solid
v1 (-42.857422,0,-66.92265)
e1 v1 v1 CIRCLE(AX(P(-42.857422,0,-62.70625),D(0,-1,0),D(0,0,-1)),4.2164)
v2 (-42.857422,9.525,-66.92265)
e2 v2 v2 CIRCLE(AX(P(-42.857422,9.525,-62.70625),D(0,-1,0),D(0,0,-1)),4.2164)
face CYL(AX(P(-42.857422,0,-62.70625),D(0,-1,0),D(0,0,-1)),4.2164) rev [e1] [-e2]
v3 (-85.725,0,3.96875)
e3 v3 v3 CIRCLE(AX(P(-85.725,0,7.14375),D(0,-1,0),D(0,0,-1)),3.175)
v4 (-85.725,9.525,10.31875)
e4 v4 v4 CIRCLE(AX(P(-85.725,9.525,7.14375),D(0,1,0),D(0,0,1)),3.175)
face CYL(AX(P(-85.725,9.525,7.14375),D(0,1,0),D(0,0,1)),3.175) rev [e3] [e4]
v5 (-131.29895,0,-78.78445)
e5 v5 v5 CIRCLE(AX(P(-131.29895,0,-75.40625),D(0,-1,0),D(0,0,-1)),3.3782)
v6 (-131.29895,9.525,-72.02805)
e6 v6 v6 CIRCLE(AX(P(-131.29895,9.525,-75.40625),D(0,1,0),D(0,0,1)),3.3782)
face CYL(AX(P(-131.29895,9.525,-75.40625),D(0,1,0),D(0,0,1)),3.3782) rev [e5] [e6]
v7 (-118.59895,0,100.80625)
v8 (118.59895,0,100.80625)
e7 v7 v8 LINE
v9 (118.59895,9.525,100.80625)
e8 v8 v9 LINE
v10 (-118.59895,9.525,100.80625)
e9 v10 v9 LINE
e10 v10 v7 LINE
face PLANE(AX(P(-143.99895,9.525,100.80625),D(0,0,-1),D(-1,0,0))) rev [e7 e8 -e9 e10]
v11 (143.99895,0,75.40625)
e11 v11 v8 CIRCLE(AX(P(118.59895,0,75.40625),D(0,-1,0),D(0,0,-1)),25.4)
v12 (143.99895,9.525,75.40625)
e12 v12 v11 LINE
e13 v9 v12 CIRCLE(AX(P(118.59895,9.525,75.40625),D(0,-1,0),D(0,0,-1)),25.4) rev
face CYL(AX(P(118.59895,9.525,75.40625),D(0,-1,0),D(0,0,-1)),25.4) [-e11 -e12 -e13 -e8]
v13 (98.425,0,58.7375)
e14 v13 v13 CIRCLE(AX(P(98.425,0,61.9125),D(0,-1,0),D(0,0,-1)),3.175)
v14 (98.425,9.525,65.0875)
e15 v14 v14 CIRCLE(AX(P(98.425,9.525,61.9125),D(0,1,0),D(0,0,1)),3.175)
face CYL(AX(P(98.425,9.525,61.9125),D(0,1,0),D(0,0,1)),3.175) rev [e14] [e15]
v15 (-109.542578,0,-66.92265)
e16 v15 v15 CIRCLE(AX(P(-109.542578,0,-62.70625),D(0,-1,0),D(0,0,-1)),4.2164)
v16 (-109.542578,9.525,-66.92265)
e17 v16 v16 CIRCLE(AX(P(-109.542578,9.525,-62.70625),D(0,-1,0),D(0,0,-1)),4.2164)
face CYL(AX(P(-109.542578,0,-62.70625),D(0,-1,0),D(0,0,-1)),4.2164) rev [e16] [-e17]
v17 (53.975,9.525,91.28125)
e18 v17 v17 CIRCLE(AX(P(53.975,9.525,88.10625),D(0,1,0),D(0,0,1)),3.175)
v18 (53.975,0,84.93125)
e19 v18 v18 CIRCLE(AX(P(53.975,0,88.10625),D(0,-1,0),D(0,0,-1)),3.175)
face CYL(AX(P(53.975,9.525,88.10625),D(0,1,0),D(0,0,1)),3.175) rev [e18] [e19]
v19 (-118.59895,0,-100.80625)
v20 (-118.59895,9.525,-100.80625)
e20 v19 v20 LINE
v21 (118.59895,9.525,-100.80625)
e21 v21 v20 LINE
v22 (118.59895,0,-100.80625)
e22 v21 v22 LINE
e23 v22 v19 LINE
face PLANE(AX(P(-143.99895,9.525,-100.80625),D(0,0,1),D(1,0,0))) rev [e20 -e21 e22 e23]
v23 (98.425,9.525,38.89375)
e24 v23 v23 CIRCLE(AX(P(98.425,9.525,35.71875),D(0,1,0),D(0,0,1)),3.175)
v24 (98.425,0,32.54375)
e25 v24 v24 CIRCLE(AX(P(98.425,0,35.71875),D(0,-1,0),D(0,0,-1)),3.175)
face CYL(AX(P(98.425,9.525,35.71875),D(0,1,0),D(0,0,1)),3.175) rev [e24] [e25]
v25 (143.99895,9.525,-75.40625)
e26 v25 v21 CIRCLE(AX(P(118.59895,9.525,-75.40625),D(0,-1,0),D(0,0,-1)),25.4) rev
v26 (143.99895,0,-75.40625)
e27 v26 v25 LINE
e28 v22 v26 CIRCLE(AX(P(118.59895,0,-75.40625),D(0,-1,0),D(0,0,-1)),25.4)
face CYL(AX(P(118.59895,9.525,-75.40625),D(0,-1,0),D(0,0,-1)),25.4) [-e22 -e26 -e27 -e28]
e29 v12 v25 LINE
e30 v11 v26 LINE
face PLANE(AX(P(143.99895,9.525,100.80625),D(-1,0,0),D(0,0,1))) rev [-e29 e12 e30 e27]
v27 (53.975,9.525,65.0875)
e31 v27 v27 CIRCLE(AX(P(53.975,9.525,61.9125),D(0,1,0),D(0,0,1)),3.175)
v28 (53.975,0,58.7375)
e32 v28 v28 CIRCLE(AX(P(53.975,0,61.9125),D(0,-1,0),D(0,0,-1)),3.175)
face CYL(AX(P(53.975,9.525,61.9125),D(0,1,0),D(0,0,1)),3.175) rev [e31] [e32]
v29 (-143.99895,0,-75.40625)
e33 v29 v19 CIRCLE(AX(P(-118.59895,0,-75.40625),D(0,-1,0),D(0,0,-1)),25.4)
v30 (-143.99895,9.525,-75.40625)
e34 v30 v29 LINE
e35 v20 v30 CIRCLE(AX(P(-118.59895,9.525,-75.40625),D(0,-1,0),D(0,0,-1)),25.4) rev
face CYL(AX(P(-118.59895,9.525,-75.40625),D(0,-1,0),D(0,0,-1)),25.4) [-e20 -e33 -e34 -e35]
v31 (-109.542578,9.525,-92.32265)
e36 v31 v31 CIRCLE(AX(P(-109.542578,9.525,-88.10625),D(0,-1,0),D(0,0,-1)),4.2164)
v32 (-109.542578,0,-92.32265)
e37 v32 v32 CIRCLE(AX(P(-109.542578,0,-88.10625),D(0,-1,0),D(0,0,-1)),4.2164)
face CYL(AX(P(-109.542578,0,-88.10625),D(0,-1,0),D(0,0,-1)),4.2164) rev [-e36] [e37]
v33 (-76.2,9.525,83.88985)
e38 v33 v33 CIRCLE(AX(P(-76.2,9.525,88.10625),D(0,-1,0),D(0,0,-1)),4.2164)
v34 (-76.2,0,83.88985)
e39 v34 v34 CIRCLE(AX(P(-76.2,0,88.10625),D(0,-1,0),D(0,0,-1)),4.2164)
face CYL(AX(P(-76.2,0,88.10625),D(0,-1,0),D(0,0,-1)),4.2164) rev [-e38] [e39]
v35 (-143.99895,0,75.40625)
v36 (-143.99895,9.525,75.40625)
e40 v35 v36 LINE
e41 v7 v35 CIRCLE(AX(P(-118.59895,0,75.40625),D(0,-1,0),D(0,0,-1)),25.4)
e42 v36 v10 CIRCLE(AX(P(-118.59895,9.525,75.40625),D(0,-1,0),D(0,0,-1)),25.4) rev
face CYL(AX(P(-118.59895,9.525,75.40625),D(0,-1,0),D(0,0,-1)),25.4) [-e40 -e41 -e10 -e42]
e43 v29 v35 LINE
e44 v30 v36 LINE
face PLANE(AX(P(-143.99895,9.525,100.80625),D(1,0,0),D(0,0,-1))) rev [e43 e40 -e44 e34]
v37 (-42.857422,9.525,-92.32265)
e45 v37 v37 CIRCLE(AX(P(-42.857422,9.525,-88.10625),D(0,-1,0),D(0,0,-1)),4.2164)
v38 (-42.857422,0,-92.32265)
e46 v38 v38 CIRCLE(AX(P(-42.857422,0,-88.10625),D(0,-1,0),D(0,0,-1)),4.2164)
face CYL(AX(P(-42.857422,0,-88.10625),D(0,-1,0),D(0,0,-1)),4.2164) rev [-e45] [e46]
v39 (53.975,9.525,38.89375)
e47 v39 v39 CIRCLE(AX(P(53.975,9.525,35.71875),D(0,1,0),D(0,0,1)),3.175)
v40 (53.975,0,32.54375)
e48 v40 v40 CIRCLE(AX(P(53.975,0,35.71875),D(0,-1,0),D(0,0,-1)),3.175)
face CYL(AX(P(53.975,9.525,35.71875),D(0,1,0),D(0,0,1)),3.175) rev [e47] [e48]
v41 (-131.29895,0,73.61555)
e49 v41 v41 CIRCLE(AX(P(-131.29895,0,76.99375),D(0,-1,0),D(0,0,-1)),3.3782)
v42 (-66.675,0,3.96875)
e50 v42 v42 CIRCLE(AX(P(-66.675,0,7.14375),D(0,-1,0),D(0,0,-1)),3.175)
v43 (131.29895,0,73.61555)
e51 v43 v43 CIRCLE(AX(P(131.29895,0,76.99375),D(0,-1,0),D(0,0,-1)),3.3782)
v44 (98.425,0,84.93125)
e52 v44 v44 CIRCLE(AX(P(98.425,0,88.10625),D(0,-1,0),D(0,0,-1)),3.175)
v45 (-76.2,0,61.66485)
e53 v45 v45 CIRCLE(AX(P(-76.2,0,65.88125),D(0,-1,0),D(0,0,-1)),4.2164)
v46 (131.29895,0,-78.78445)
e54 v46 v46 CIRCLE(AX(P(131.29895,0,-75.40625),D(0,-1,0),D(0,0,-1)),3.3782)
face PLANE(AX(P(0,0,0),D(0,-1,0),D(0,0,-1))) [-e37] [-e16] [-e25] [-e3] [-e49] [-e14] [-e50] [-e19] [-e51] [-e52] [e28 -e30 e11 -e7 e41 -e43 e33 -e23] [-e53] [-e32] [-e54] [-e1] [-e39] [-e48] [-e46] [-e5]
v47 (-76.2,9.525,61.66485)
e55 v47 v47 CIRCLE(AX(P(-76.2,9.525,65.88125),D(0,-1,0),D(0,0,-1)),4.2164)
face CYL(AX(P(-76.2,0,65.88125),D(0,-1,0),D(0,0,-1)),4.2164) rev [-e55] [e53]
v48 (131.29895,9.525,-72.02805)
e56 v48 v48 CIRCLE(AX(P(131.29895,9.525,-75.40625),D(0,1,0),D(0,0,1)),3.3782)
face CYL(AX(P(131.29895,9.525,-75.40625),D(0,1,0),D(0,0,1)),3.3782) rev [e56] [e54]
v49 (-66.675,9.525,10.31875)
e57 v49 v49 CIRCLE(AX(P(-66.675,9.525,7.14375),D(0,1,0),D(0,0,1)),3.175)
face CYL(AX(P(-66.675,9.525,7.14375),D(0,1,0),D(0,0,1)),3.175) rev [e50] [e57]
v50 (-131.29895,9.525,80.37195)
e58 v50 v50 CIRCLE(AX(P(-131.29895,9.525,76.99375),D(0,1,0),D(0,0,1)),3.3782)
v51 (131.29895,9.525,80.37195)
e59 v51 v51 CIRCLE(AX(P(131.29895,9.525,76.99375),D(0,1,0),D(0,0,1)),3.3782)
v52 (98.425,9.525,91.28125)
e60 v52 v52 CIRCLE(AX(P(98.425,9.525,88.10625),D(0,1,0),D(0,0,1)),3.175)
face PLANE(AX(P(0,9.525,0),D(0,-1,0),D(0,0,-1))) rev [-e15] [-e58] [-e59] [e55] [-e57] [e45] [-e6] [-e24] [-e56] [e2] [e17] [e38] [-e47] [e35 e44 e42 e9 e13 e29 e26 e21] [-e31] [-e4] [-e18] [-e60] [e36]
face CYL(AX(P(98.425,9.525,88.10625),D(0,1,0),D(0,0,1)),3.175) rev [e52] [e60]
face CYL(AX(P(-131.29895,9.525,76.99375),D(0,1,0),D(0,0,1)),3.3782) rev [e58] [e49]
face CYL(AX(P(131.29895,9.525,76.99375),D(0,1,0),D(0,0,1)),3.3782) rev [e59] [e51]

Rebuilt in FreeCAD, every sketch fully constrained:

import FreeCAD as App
import Part
import Sketcher
Q = App.Units.Quantity


def edges_at(feature, points):
    """Names of the edges that pass closest to the given points."""
    edges = feature.Shape.Edges
    near = lambda p: min(range(len(edges)), key=lambda i: edges[i].distToShape(Part.Vertex(*p))[0])
    return sorted({f"Edge{near(p) + 1}" for p in points})


def add_polygon(sketch, points):
    """Adds a closed chain of lines whose ends are joined by coincident constraints."""
    first, n = sketch.GeometryCount, len(points)
    for a, b in zip(points, points[1:] + points[:1]):
        sketch.addGeometry(Part.LineSegment(App.Vector(*a, 0), App.Vector(*b, 0)), False)
    for i in range(n):
        sketch.addConstraint(Sketcher.Constraint("Coincident", first + i, 2, first + (i + 1) % n, 1))

doc = App.newDocument("Part")
body = doc.addObject("PartDesign::Body", "Body")

# Sketch on XZ plane
sketch1 = body.newObject("Sketcher::SketchObject", "Sketch")
sketch1.AttachmentSupport = (doc.getObject("XZ_Plane"), [""])
sketch1.MapMode = "FlatFace"
add_polygon(sketch1, [(-144, -101), (-144, 101), (144, 101), (144, -101)])  # lines 0-3
sketch1.addConstraint([
    Sketcher.Constraint("Vertical", 0),
    Sketcher.Constraint("Horizontal", 1),
    Sketcher.Constraint("Vertical", 2),
    Sketcher.Constraint("Horizontal", 3),
    Sketcher.Constraint("Symmetric", 0, 2, 2, 2, -1, 1),
    Sketcher.Constraint("DistanceY", 0, 1, 0, 2, Q("7.9375 in")),
    Sketcher.Constraint("DistanceX", 1, 1, 1, 2, Q("11.3385 in")),
])
pad1 = body.newObject("PartDesign::Pad", "Pad")
pad1.Profile = sketch1
pad1.Length = Q("0.375 in")
pad1.Reversed = True
doc.recompute()

fillet = body.newObject("PartDesign::Fillet", "Fillet")
fillet.Base = (pad1, edges_at(pad1, [
    (143.999, 4.763, 100.806),
    (-143.999, 4.763, 100.806),
    (-143.999, 4.763, -100.806),
    (143.999, 4.763, -100.806),
]))
fillet.Radius = Q("1 in")

# Sketch on XZ plane
sketch2 = body.newObject("Sketcher::SketchObject", "Sketch001")
sketch2.AttachmentSupport = (doc.getObject("XZ_Plane"), [""])
sketch2.MapMode = "FlatFace"
sketch2.AttachmentOffset = App.Placement(App.Vector(0, 0, -0.375 * 25.4), App.Rotation())
sketch2.addGeometry([
    Part.Circle(App.Vector(-131.3, -75.4, 0), App.Vector(0, 0, 1), 3.4),
    Part.Circle(App.Vector(131.3, -75.4, 0), App.Vector(0, 0, 1), 3.4),
    Part.Circle(App.Vector(131.3, 77, 0), App.Vector(0, 0, 1), 3.4),
    Part.Circle(App.Vector(-131.3, 77, 0), App.Vector(0, 0, 1), 3.4),
], False)
sketch2.addConstraint([
    Sketcher.Constraint("Equal", 0, 1),
    Sketcher.Constraint("Equal", 1, 2),
    Sketcher.Constraint("Equal", 2, 3),
    Sketcher.Constraint("Symmetric", 0, 3, 1, 3, -2),
    Sketcher.Constraint("Symmetric", 2, 3, 3, 3, -2),
    Sketcher.Constraint("Vertical", 1, 3, 2, 3),
    Sketcher.Constraint("Diameter", 0, Q("0.266 in")),
    Sketcher.Constraint("DistanceY", 1, 3, 2, 3, Q("6 in")),
    Sketcher.Constraint("DistanceY", 0, 3, -1, 1, Q("2.96875 in")),
    Sketcher.Constraint("DistanceX", 0, 3, 1, 3, Q("10.3385 in")),
])
doc.recompute()
hole = body.newObject("PartDesign::Hole", "Hole")
hole.Profile = sketch2
hole.ThreadType = "None"
hole.Diameter = Q("0.266 in")
hole.DepthType = "Dimension"
hole.Depth = Q("0.85 in")
hole.DrillPoint = "Angled"
hole.DrillPointAngle = 118
hole.Reversed = True

# Sketch on XZ plane
sketch3 = body.newObject("Sketcher::SketchObject", "Sketch002")
sketch3.AttachmentSupport = (doc.getObject("XZ_Plane"), [""])
sketch3.MapMode = "FlatFace"
sketch3.addGeometry([
    Part.Circle(App.Vector(-76.2, 88.1, 0), App.Vector(0, 0, 1), 4.2),  # 0
    Part.Circle(App.Vector(-76.2, 65.9, 0), App.Vector(0, 0, 1), 4.2),  # 1
    Part.Circle(App.Vector(-42.9, -88.1, 0), App.Vector(0, 0, 1), 4.2),  # 2
    Part.Circle(App.Vector(-109.5, -62.7, 0), App.Vector(0, 0, 1), 4.2),  # 3
    Part.Circle(App.Vector(-42.9, -62.7, 0), App.Vector(0, 0, 1), 4.2),  # 4
    Part.Circle(App.Vector(-109.5, -88.1, 0), App.Vector(0, 0, 1), 4.2),  # 5
], False)
sketch3.addConstraint([
    Sketcher.Constraint("Equal", 0, 1),
    Sketcher.Constraint("Equal", 1, 2),
    Sketcher.Constraint("Equal", 2, 3),
    Sketcher.Constraint("Equal", 3, 4),
    Sketcher.Constraint("Equal", 4, 5),
    Sketcher.Constraint("Horizontal", 3, 3, 4, 3),
    Sketcher.Constraint("Horizontal", 2, 3, 5, 3),
    Sketcher.Constraint("Vertical", 0, 3, 1, 3),
    Sketcher.Constraint("Vertical", 2, 3, 4, 3),
    Sketcher.Constraint("Vertical", 3, 3, 5, 3),
    Sketcher.Constraint("Diameter", 0, Q("0.332 in")),
    Sketcher.Constraint("DistanceX", 0, 3, -1, 1, Q("3 in")),
    Sketcher.Constraint("DistanceY", 2, 3, 3, 3, Q("1 in")),
    Sketcher.Constraint("DistanceY", -1, 1, 0, 3, Q("3.46875 in")),
    Sketcher.Constraint("DistanceY", -1, 1, 1, 3, Q("2.59375 in")),
    Sketcher.Constraint("DistanceY", 2, 3, -1, 1, Q("3.46875 in")),
    Sketcher.Constraint("DistanceX", 2, 3, -1, 1, Q("1.6873001 in")),
    Sketcher.Constraint("DistanceX", 3, 3, -1, 1, Q("4.3126999 in")),
])
doc.recompute()
hole2 = body.newObject("PartDesign::Hole", "Hole001")
hole2.Profile = sketch3
hole2.ThreadType = "None"
hole2.Diameter = Q("0.332 in")
hole2.DepthType = "ThroughAll"

# Sketch on XZ plane
sketch4 = body.newObject("Sketcher::SketchObject", "Sketch003")
sketch4.AttachmentSupport = (doc.getObject("XZ_Plane"), [""])
sketch4.MapMode = "FlatFace"
sketch4.AttachmentOffset = App.Placement(App.Vector(0, 0, -0.375 * 25.4), App.Rotation())
sketch4.addGeometry([
    Part.Circle(App.Vector(54, 35.7, 0), App.Vector(0, 0, 1), 3.2),  # 0
    Part.Circle(App.Vector(98.4, 35.7, 0), App.Vector(0, 0, 1), 3.2),  # 1
    Part.Circle(App.Vector(98.4, 61.9, 0), App.Vector(0, 0, 1), 3.2),  # 2
    Part.Circle(App.Vector(98.4, 88.1, 0), App.Vector(0, 0, 1), 3.2),  # 3
    Part.Circle(App.Vector(54, 88.1, 0), App.Vector(0, 0, 1), 3.2),  # 4
    Part.Circle(App.Vector(54, 61.9, 0), App.Vector(0, 0, 1), 3.2),  # 5
    Part.Circle(App.Vector(-66.7, 7.1, 0), App.Vector(0, 0, 1), 3.2),  # 6
    Part.Circle(App.Vector(-85.7, 7.1, 0), App.Vector(0, 0, 1), 3.2),  # 7
], False)
sketch4.addConstraint([
    Sketcher.Constraint("Equal", 0, 1),
    Sketcher.Constraint("Equal", 1, 2),
    Sketcher.Constraint("Equal", 2, 3),
    Sketcher.Constraint("Equal", 3, 4),
    Sketcher.Constraint("Equal", 4, 5),
    Sketcher.Constraint("Equal", 5, 6),
    Sketcher.Constraint("Equal", 6, 7),
    Sketcher.Constraint("Horizontal", 0, 3, 1, 3),
    Sketcher.Constraint("Horizontal", 3, 3, 4, 3),
    Sketcher.Constraint("Horizontal", 2, 3, 5, 3),
    Sketcher.Constraint("Horizontal", 6, 3, 7, 3),
    Sketcher.Constraint("Vertical", 1, 3, 2, 3),
    Sketcher.Constraint("Vertical", 2, 3, 3, 3),
    Sketcher.Constraint("Vertical", 0, 3, 4, 3),
    Sketcher.Constraint("Vertical", 4, 3, 5, 3),
    Sketcher.Constraint("Diameter", 0, Q("0.25 in")),
    Sketcher.Constraint("DistanceX", 6, 3, 1, 3, Q("6.5 in")),
    Sketcher.Constraint("DistanceX", 7, 3, 0, 3, Q("5.5 in")),
    Sketcher.Constraint("DistanceX", 0, 3, 1, 3, Q("1.75 in")),
    Sketcher.Constraint("DistanceX", -1, 1, 0, 3, Q("2.125 in")),
    Sketcher.Constraint("DistanceY", -1, 1, 0, 3, Q("1.40625 in")),
    Sketcher.Constraint("DistanceY", -1, 1, 2, 3, Q("2.4375 in")),
    Sketcher.Constraint("DistanceY", -1, 1, 3, 3, Q("3.46875 in")),
    Sketcher.Constraint("DistanceY", -1, 1, 6, 3, Q("0.28125 in")),
])
doc.recompute()
hole3 = body.newObject("PartDesign::Hole", "Hole002")
hole3.Profile = sketch4
hole3.ThreadType = "None"
hole3.Diameter = Q("0.25 in")
hole3.DepthType = "Dimension"
hole3.Depth = Q("0.85 in")
hole3.DrillPoint = "Angled"
hole3.DrillPointAngle = 118
hole3.Reversed = True

doc.recompute()
